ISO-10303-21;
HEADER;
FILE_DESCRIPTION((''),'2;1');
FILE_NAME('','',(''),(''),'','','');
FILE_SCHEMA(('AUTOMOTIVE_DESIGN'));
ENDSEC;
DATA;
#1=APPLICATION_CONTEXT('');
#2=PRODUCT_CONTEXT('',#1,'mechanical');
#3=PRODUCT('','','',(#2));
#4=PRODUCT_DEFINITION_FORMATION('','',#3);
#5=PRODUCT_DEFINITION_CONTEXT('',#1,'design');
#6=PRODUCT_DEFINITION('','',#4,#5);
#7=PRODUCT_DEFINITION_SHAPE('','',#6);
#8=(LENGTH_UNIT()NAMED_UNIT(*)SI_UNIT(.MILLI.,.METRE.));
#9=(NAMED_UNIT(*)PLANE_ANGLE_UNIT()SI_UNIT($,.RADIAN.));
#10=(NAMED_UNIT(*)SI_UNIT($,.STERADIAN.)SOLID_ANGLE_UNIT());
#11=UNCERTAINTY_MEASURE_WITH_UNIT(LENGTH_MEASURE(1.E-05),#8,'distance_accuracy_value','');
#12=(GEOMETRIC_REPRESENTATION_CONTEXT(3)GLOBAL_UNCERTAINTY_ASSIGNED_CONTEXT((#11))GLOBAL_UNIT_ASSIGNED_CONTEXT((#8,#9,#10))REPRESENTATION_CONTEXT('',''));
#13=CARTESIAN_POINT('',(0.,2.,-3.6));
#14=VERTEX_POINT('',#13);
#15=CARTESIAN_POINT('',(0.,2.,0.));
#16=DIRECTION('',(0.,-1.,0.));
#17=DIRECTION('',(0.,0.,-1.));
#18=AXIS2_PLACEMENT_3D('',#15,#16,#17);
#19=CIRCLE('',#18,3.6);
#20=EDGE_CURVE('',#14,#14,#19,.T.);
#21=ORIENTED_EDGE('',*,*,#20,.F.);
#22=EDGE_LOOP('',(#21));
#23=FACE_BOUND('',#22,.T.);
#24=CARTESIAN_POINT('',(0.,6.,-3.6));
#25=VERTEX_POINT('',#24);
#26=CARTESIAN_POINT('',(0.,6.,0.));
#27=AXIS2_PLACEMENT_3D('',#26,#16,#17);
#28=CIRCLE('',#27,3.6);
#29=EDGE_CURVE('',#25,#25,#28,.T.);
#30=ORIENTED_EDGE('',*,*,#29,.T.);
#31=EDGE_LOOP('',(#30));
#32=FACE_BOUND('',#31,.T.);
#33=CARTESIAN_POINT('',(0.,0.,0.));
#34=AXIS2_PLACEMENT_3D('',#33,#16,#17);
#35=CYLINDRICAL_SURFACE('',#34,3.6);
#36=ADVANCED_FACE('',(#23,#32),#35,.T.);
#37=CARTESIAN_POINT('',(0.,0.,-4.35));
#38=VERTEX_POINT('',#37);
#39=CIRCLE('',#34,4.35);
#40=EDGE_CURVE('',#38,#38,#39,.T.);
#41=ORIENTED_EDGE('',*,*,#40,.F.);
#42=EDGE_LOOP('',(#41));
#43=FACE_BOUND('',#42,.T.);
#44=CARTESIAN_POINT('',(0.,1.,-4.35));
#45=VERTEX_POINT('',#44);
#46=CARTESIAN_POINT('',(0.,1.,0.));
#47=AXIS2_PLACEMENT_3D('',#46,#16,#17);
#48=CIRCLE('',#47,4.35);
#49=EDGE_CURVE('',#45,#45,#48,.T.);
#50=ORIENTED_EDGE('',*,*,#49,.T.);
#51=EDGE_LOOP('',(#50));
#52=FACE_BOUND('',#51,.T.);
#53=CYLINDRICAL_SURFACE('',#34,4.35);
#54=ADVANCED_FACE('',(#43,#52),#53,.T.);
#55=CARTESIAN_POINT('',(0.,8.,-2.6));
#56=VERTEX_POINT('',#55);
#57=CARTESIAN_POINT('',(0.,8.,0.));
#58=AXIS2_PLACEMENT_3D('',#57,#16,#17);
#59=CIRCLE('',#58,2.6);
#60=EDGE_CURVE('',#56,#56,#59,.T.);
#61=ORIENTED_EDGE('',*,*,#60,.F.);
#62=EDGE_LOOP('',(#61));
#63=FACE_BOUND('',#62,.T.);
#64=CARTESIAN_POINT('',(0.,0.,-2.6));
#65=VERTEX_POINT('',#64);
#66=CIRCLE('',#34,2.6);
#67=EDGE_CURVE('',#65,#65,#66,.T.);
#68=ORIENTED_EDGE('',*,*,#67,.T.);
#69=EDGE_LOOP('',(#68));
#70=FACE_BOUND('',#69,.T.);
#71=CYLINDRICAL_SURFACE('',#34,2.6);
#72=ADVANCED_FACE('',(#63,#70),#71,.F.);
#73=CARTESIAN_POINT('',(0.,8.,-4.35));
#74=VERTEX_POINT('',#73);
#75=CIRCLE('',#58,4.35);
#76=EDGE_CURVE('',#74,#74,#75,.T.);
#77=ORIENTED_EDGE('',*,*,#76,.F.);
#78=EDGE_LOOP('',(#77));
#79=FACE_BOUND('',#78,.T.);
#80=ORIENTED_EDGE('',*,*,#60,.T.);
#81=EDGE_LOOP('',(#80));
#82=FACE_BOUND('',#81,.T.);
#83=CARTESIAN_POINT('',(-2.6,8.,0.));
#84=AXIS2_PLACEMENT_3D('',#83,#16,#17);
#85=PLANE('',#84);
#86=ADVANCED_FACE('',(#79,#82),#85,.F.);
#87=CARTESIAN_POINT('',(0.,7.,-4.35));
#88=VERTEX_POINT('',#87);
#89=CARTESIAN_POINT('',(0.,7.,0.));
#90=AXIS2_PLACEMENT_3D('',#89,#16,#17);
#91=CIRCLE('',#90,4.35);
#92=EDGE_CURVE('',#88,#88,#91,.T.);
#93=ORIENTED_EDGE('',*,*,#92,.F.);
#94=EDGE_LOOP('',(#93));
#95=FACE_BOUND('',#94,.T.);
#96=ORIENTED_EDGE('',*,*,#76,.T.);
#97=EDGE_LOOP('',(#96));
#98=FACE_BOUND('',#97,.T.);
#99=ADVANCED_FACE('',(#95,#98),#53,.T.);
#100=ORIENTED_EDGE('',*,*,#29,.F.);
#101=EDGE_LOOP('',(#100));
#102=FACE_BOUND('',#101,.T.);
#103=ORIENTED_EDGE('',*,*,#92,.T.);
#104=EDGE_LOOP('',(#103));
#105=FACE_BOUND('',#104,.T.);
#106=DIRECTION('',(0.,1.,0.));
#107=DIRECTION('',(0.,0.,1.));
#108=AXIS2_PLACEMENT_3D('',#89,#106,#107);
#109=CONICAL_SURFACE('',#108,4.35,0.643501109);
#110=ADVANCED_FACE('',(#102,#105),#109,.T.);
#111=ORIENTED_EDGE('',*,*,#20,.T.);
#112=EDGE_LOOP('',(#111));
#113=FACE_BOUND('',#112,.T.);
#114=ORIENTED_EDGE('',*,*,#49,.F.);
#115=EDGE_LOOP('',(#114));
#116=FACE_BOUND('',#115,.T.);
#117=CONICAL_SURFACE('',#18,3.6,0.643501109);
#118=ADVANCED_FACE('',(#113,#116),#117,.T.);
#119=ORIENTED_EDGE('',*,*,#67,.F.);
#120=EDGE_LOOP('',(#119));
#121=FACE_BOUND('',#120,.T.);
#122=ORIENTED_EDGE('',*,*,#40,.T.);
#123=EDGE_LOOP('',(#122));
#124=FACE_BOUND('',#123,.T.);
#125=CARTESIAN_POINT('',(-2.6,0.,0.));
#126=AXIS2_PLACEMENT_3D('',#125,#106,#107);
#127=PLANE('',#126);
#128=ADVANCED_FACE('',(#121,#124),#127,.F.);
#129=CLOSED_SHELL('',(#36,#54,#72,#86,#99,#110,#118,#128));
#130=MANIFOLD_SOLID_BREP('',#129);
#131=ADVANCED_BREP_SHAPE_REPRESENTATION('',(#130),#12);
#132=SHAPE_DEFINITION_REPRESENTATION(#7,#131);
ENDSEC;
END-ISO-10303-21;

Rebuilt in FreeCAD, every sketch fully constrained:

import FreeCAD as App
import Part
import Sketcher
from FreeCAD import Vector
Q = App.Units.Quantity


def add_polygon(sketch, points):
    """Adds a closed chain of lines whose ends are joined by coincident constraints."""
    first, n = sketch.GeometryCount, len(points)
    for a, b in zip(points, points[1:] + points[:1]):
        sketch.addGeometry(Part.LineSegment(App.Vector(*a, 0), App.Vector(*b, 0)), False)
    for i in range(n):
        sketch.addConstraint(Sketcher.Constraint("Coincident", first + i, 2, first + (i + 1) % n, 1))

doc = App.newDocument("Part")
body = doc.addObject("PartDesign::Body", "Body")

sketch1 = body.newObject("Sketcher::SketchObject", "Sketch")
sketch1.AttachmentSupport = (doc.getObject("XY_Plane"), [""])
sketch1.MapMode = "FlatFace"
add_polygon(sketch1, [(-2.6, 0), (-2.6, 8), (-4.3, 8), (-4.3, 7), (-3.6, 6), (-3.6, 2), (-4.3, 1), (-4.3, 0)])
sketch1.addConstraint([
    Sketcher.Constraint("Vertical", 0),
    Sketcher.Constraint("Horizontal", 1),
    Sketcher.Constraint("Vertical", 2),
    Sketcher.Constraint("Vertical", 4),
    Sketcher.Constraint("Vertical", 6),
    Sketcher.Constraint("Horizontal", 7),
    Sketcher.Constraint("PointOnObject", 6, 2, -1),
    Sketcher.Constraint("Vertical", 2, 2, 5, 2),
    Sketcher.Constraint("Equal", 2, 6),
    Sketcher.Constraint("Equal", 3, 5),
    Sketcher.Constraint("DistanceY", 0, 1, 0, 2, Q("8 mm")),
    Sketcher.Constraint("DistanceY", 2, 2, 2, 1, Q("1 mm")),
    Sketcher.Constraint("DistanceY", 4, 2, 4, 1, Q("4 mm")),
    Sketcher.Constraint("DistanceX", 3, 2, 0, 2, Q("1 mm")),
    Sketcher.Constraint("DistanceX", 1, 2, 1, 1, Q("1.75 mm")),
    Sketcher.Constraint("DistanceX", 0, 2, -1, 1, Q("2.6 mm")),
])
revolution = body.newObject("PartDesign::Revolution", "Revolution")
revolution.Profile = sketch1
revolution.ReferenceAxis = (sketch1, ["V_Axis"])
revolution.Angle = 360

doc.recompute()
